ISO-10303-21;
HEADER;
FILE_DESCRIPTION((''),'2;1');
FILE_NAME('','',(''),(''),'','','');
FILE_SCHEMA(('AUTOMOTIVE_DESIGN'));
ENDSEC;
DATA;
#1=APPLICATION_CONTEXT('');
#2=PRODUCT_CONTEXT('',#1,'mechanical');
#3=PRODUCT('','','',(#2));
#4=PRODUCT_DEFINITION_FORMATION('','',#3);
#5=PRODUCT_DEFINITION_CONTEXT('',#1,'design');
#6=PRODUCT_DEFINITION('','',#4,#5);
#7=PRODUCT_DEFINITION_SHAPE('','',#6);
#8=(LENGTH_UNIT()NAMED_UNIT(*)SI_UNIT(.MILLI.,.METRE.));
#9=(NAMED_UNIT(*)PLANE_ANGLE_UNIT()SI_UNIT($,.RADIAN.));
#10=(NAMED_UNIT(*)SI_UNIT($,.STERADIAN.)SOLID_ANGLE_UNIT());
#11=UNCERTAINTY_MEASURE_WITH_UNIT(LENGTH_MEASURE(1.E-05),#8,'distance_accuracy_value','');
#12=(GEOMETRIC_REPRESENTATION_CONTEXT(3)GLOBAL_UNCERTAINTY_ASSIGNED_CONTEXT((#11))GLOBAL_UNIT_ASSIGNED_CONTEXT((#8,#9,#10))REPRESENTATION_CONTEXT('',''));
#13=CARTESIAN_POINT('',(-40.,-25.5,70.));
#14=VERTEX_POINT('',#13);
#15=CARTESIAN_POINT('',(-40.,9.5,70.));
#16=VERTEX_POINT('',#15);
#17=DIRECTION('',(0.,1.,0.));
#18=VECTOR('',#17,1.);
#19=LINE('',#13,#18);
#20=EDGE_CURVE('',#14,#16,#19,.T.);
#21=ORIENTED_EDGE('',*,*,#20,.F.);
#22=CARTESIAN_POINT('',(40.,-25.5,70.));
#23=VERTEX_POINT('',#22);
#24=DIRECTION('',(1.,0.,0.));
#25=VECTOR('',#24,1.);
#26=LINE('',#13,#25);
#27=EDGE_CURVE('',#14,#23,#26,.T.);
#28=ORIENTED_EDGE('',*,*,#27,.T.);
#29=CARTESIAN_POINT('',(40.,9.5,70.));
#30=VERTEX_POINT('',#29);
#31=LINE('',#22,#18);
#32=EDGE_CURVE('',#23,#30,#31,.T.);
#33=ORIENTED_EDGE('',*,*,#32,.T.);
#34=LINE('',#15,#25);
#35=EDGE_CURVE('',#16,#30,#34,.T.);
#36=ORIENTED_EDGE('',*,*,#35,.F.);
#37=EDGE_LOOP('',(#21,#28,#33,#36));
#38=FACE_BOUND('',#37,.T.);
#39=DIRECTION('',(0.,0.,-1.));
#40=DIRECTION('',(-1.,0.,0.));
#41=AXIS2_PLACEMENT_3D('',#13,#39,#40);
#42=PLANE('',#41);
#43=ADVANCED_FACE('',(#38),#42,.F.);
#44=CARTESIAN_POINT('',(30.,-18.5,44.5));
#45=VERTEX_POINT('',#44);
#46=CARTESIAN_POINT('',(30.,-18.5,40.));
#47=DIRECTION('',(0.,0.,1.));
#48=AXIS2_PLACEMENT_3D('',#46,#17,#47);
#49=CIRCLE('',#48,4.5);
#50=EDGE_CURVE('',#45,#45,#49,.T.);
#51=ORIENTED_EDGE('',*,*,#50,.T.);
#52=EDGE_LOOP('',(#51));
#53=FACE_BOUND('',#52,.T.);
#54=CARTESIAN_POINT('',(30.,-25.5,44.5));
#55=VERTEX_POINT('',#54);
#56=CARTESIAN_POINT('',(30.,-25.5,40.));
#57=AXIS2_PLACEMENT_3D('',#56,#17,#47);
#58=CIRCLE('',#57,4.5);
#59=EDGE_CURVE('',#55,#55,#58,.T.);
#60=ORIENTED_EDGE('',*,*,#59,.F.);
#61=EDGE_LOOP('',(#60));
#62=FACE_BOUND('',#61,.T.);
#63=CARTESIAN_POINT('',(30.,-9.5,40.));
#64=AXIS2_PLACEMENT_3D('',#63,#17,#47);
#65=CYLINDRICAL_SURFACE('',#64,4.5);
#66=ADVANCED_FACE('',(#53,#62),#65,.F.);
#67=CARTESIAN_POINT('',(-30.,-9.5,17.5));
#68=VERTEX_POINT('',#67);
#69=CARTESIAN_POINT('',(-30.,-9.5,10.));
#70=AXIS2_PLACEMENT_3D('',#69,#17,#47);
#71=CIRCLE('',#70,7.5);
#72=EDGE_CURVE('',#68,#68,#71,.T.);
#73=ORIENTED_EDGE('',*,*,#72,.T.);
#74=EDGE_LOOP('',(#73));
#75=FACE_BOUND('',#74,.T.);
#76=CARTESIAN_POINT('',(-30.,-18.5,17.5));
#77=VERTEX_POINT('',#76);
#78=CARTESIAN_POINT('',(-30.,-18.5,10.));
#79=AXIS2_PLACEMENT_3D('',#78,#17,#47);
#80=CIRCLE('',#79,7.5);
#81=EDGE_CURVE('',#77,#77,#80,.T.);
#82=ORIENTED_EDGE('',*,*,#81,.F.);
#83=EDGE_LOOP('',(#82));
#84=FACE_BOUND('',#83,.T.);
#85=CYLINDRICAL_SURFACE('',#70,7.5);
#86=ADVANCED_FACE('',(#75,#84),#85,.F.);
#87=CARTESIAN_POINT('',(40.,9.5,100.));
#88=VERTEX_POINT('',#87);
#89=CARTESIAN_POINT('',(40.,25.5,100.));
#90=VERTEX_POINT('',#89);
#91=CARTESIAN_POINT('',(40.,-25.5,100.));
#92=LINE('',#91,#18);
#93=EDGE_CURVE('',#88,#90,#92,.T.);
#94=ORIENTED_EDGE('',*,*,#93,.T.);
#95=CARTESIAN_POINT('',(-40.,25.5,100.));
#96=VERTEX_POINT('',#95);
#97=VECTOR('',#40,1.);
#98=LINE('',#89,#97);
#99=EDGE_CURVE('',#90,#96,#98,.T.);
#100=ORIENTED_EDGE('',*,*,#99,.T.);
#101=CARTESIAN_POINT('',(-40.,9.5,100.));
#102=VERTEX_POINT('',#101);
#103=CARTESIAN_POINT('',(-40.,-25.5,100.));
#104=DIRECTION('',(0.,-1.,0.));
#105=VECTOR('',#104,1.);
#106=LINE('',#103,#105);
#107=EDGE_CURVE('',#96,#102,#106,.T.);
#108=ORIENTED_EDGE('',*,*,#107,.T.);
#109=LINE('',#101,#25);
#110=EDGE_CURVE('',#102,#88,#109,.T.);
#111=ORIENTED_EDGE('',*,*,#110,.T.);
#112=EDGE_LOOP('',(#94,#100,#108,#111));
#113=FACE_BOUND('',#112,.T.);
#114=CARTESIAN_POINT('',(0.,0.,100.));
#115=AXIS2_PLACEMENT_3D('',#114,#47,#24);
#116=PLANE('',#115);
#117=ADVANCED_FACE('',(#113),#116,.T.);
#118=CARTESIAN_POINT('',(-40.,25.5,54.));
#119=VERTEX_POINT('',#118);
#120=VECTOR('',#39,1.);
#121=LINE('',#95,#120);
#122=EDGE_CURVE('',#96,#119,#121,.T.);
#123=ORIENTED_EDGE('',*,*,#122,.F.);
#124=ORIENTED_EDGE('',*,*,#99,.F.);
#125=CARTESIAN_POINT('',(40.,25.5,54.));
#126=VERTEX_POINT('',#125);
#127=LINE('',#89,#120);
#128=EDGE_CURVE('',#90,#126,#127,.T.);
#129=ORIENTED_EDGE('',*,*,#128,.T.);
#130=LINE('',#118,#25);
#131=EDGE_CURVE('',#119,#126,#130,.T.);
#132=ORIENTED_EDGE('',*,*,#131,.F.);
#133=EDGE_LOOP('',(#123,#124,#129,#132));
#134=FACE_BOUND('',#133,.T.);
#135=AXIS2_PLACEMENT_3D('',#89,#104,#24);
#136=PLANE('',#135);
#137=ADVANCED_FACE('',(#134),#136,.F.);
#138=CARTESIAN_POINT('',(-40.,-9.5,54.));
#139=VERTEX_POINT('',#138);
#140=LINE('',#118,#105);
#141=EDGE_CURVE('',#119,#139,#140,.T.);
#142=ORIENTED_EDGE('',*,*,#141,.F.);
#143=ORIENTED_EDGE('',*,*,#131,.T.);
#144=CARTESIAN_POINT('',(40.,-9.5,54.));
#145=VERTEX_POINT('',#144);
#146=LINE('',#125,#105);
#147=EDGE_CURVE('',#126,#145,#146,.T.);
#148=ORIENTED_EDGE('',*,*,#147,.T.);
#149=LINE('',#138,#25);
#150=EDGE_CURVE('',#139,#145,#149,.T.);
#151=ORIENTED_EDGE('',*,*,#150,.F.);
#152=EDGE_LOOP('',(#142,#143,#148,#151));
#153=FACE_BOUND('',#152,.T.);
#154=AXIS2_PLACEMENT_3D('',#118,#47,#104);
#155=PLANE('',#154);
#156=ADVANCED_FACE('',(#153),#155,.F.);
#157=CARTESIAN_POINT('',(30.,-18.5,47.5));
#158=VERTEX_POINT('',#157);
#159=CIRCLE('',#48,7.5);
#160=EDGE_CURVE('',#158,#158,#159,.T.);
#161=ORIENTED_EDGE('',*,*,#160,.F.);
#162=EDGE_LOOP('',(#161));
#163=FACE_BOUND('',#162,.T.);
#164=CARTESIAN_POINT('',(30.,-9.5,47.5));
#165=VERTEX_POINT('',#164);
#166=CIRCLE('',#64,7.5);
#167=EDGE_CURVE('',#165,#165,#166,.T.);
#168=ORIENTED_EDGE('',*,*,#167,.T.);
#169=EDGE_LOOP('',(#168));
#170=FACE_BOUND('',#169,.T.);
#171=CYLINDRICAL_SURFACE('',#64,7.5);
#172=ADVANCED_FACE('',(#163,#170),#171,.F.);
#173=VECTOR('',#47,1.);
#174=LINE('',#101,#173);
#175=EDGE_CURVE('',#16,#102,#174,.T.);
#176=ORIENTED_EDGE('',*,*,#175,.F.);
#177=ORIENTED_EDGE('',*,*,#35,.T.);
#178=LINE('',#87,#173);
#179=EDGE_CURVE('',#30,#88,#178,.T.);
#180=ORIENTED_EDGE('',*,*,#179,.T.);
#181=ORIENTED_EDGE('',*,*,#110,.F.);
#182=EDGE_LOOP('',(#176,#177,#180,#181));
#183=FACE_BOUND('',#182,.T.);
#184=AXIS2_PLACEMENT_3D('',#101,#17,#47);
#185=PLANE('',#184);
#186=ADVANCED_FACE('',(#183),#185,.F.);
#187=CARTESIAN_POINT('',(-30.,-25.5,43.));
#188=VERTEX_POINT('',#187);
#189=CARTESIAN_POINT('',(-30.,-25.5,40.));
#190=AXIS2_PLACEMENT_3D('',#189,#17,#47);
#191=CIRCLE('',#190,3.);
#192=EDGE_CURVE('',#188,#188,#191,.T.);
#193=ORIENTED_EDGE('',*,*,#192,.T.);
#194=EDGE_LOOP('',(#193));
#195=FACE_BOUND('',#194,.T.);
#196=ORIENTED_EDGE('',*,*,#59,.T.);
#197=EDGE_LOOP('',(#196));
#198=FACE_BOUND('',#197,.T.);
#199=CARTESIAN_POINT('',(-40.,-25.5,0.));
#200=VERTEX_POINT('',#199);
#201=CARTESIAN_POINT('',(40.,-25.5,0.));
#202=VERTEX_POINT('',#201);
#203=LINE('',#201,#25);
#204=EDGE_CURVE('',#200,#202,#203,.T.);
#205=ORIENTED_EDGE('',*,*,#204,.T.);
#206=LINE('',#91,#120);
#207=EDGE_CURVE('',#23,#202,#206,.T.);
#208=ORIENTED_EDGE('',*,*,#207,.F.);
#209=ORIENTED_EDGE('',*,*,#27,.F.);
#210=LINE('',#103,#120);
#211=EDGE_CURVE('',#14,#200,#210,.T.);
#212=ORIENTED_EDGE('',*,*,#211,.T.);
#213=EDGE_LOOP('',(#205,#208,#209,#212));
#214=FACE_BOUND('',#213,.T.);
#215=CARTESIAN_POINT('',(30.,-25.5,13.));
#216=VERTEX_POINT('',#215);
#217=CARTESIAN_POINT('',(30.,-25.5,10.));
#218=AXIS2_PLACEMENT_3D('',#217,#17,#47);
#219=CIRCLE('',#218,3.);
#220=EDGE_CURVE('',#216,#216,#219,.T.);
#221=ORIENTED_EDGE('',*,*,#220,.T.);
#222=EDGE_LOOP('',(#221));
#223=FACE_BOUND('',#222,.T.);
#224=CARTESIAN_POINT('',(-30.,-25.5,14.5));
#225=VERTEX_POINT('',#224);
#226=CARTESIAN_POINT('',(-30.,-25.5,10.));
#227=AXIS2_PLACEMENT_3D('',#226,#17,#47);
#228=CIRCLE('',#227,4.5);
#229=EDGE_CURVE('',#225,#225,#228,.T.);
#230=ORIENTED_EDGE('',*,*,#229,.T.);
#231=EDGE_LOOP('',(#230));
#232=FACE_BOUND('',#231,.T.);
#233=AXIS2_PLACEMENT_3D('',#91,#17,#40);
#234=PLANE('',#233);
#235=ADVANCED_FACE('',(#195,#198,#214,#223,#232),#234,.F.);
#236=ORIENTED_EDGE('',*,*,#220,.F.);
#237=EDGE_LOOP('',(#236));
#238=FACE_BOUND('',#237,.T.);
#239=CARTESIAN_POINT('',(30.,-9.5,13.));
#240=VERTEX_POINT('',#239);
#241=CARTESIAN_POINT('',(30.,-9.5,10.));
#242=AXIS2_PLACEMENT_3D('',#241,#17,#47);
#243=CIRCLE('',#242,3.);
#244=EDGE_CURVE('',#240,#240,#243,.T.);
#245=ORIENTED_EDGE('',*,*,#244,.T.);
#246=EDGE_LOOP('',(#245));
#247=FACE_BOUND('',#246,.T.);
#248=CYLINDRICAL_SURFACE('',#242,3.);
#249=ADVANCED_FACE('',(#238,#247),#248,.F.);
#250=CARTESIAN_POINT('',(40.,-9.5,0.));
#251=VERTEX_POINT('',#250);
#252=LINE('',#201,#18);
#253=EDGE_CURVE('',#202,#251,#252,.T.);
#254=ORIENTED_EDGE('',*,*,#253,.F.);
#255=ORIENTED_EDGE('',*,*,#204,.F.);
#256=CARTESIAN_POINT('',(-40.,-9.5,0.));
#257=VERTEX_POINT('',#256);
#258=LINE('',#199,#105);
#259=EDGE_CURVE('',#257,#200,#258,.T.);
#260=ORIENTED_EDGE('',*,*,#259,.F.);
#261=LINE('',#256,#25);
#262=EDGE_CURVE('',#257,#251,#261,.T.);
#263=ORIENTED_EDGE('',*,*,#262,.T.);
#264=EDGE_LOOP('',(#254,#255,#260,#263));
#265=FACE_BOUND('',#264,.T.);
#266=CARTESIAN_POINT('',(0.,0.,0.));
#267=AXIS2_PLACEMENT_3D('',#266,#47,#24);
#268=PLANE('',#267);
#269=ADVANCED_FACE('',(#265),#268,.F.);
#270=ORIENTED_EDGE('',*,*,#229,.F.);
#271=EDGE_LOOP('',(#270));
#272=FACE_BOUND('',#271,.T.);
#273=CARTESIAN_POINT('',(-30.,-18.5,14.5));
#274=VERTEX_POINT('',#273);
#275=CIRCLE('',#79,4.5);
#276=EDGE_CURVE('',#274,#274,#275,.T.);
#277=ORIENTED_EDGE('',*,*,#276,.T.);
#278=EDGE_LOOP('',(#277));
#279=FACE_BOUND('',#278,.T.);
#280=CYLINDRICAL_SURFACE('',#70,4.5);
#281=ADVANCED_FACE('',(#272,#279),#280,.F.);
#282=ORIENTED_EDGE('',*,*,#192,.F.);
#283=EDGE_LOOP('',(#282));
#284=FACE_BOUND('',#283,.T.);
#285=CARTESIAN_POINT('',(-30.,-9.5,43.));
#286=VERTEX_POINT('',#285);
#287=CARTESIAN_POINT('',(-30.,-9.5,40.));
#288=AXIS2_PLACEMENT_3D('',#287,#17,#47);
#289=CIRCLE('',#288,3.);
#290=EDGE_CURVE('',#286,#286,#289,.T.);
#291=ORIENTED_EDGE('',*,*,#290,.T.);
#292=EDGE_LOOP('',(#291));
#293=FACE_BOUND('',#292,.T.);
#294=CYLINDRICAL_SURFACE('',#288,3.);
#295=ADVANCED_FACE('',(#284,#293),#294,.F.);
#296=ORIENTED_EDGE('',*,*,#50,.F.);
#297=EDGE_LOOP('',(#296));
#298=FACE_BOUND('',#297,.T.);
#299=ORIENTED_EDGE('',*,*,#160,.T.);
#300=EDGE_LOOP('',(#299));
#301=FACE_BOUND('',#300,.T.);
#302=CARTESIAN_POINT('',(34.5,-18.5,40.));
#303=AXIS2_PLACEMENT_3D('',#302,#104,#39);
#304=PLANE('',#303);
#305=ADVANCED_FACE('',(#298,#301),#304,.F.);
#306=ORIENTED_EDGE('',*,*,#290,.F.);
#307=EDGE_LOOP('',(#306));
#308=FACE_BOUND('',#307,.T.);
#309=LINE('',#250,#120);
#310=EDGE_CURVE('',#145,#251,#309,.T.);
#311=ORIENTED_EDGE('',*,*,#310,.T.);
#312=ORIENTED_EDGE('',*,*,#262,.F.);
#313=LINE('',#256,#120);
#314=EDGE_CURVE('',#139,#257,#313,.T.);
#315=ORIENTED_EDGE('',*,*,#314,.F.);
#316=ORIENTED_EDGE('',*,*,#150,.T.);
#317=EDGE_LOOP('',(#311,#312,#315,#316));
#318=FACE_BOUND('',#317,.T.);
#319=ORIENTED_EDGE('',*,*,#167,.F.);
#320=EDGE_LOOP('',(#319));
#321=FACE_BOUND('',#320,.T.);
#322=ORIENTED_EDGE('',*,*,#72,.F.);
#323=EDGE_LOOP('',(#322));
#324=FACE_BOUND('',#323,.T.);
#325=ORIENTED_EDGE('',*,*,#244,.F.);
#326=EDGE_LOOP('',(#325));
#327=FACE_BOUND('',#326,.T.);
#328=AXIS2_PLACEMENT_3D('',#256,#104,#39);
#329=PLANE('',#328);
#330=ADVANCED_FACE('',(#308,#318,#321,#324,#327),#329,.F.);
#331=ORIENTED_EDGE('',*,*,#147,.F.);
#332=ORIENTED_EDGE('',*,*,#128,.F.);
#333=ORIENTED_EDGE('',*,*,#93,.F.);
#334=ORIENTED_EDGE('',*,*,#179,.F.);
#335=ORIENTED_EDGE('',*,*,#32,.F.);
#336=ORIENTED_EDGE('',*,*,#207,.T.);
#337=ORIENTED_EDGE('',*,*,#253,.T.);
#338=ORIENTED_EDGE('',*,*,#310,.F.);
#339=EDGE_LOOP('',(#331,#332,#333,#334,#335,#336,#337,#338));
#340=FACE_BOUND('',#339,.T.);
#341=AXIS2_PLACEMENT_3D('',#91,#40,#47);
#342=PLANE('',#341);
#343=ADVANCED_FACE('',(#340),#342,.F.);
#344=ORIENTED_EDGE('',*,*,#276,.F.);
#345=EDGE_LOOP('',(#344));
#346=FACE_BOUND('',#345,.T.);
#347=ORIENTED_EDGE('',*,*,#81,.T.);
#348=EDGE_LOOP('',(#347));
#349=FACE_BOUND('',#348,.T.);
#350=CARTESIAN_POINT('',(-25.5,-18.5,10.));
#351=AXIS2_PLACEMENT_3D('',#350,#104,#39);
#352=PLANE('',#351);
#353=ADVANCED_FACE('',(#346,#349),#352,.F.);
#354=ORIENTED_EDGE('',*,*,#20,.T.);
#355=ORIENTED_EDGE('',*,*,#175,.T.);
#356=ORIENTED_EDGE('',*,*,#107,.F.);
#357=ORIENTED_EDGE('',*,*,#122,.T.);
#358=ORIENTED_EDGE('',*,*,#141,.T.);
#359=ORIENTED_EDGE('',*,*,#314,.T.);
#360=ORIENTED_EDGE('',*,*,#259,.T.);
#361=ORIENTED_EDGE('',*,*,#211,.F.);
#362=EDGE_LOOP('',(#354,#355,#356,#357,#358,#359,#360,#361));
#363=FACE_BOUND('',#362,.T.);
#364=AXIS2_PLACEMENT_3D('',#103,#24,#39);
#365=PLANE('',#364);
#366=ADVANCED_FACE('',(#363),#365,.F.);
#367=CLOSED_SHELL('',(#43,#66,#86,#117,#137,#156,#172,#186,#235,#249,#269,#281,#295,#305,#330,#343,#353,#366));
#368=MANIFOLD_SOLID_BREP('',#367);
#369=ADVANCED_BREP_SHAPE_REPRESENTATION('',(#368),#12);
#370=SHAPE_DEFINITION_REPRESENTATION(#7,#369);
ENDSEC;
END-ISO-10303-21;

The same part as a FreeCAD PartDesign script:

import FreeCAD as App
import Part
import Sketcher
Q = App.Units.Quantity


def add_polygon(sketch, points):
    """Adds a closed chain of lines whose ends are joined by coincident constraints."""
    first, n = sketch.GeometryCount, len(points)
    for a, b in zip(points, points[1:] + points[:1]):
        sketch.addGeometry(Part.LineSegment(App.Vector(*a, 0), App.Vector(*b, 0)), False)
    for i in range(n):
        sketch.addConstraint(Sketcher.Constraint("Coincident", first + i, 2, first + (i + 1) % n, 1))

doc = App.newDocument("Part")
body = doc.addObject("PartDesign::Body", "Body")

sketch1 = body.newObject("Sketcher::SketchObject", "Sketch")
sketch1.AttachmentSupport = (doc.getObject("XY_Plane"), [""])
sketch1.MapMode = "FlatFace"
add_polygon(sketch1, [(-40, 25.5), (-40, -25.5), (40, -25.5), (40, 25.5)])
sketch1.addConstraint([
    Sketcher.Constraint("Vertical", 0),
    Sketcher.Constraint("Horizontal", 1),
    Sketcher.Constraint("Vertical", 2),
    Sketcher.Constraint("Horizontal", 3),
    Sketcher.Constraint("Symmetric", 0, 2, 2, 2, -1, 1),
    Sketcher.Constraint("DistanceX", 1, 1, 1, 2, Q("80 mm")),
    Sketcher.Constraint("DistanceY", 0, 2, 0, 1, Q("51 mm")),
])
pad1 = body.newObject("PartDesign::Pad", "Pad")
pad1.Profile = sketch1
pad1.Length = 100

sketch2 = body.newObject("Sketcher::SketchObject", "Sketch001")
sketch2.AttachmentSupport = (doc.getObject("YZ_Plane"), [""])
sketch2.MapMode = "FlatFace"
sketch2.AttachmentOffset = App.Placement(App.Vector(0, 0, 40), App.Rotation())
add_polygon(sketch2, [(9.5, 100), (-25.5, 100), (-25.5, 70), (9.5, 70)])
sketch2.addConstraint([
    Sketcher.Constraint("Horizontal", 0),
    Sketcher.Constraint("Vertical", 1),
    Sketcher.Constraint("Horizontal", 2),
    Sketcher.Constraint("Vertical", 3),
    Sketcher.Constraint("DistanceX", 0, 2, 0, 1, Q("35 mm")),
    Sketcher.Constraint("DistanceY", 1, 2, 1, 1, Q("30 mm")),
    Sketcher.Constraint("DistanceY", -1, 1, 0, 2, Q("100 mm")),
    Sketcher.Constraint("DistanceX", 0, 2, -1, 1, Q("25.5 mm")),
])
pocket1 = body.newObject("PartDesign::Pocket", "Pocket")
pocket1.Profile = sketch2
pocket1.Type = "ThroughAll"

sketch3 = body.newObject("Sketcher::SketchObject", "Sketch002")
sketch3.AttachmentSupport = (doc.getObject("YZ_Plane"), [""])
sketch3.MapMode = "FlatFace"
sketch3.AttachmentOffset = App.Placement(App.Vector(0, 0, 40), App.Rotation())
add_polygon(sketch3, [(25.5, 54), (-9.5, 54), (-9.5, 0), (25.5, 0)])
sketch3.addConstraint([
    Sketcher.Constraint("Horizontal", 0),
    Sketcher.Constraint("Vertical", 1),
    Sketcher.Constraint("Horizontal", 2),
    Sketcher.Constraint("Vertical", 3),
    Sketcher.Constraint("PointOnObject", 1, 2, -1),
    Sketcher.Constraint("DistanceX", 0, 2, 0, 1, Q("35 mm")),
    Sketcher.Constraint("DistanceY", 1, 2, 1, 1, Q("54 mm")),
    Sketcher.Constraint("DistanceX", 0, 2, -1, 1, Q("9.5 mm")),
])
pocket2 = body.newObject("PartDesign::Pocket", "Pocket001")
pocket2.Profile = sketch3
pocket2.Type = "ThroughAll"

sketch4 = body.newObject("Sketcher::SketchObject", "Sketch003")
sketch4.AttachmentSupport = (doc.getObject("XZ_Plane"), [""])
sketch4.MapMode = "FlatFace"
sketch4.AttachmentOffset = App.Placement(App.Vector(0, 0, 9.5), App.Rotation())
sketch4.addGeometry([
    Part.Circle(App.Vector(-30, 10, 0), App.Vector(0, 0, 1), 4.5),
    Part.Circle(App.Vector(30, 40, 0), App.Vector(0, 0, 1), 4.5),
], False)
sketch4.addConstraint([
    Sketcher.Constraint("Equal", 0, 1),
    Sketcher.Constraint("Diameter", 0, Q("9 mm")),
    Sketcher.Constraint("DistanceX", 0, 3, -1, 1, Q("30 mm")),
    Sketcher.Constraint("DistanceY", -1, 1, 0, 3, Q("10 mm")),
    Sketcher.Constraint("DistanceX", -1, 1, 1, 3, Q("30 mm")),
    Sketcher.Constraint("DistanceY", -1, 1, 1, 3, Q("40 mm")),
])
doc.recompute()
hole = body.newObject("PartDesign::Hole", "Hole")
hole.Profile = sketch4
hole.ThreadType = "None"
hole.Diameter = 9
hole.DepthType = "ThroughAll"
hole.HoleCutType = "Counterbore"
hole.HoleCutDiameter = 15
hole.HoleCutDepth = 9
hole.Reversed = True

sketch5 = body.newObject("Sketcher::SketchObject", "Sketch004")
sketch5.AttachmentSupport = (doc.getObject("XZ_Plane"), [""])
sketch5.MapMode = "FlatFace"
sketch5.AttachmentOffset = App.Placement(App.Vector(0, 0, 9.5), App.Rotation())
sketch5.addGeometry([
    Part.Circle(App.Vector(-30, 40, 0), App.Vector(0, 0, 1), 3),
    Part.Circle(App.Vector(30, 10, 0), App.Vector(0, 0, 1), 3),
], False)
sketch5.addConstraint([
    Sketcher.Constraint("Equal", 0, 1),
    Sketcher.Constraint("Diameter", 0, Q("6 mm")),
    Sketcher.Constraint("DistanceX", 0, 3, -1, 1, Q("30 mm")),
    Sketcher.Constraint("DistanceY", -1, 1, 0, 3, Q("40 mm")),
    Sketcher.Constraint("DistanceX", -1, 1, 1, 3, Q("30 mm")),
    Sketcher.Constraint("DistanceY", -1, 1, 1, 3, Q("10 mm")),
])
doc.recompute()
hole2 = body.newObject("PartDesign::Hole", "Hole001")
hole2.Profile = sketch5
hole2.ThreadType = "None"
hole2.Diameter = 6
hole2.DepthType = "ThroughAll"
hole2.Reversed = True

doc.recompute()
